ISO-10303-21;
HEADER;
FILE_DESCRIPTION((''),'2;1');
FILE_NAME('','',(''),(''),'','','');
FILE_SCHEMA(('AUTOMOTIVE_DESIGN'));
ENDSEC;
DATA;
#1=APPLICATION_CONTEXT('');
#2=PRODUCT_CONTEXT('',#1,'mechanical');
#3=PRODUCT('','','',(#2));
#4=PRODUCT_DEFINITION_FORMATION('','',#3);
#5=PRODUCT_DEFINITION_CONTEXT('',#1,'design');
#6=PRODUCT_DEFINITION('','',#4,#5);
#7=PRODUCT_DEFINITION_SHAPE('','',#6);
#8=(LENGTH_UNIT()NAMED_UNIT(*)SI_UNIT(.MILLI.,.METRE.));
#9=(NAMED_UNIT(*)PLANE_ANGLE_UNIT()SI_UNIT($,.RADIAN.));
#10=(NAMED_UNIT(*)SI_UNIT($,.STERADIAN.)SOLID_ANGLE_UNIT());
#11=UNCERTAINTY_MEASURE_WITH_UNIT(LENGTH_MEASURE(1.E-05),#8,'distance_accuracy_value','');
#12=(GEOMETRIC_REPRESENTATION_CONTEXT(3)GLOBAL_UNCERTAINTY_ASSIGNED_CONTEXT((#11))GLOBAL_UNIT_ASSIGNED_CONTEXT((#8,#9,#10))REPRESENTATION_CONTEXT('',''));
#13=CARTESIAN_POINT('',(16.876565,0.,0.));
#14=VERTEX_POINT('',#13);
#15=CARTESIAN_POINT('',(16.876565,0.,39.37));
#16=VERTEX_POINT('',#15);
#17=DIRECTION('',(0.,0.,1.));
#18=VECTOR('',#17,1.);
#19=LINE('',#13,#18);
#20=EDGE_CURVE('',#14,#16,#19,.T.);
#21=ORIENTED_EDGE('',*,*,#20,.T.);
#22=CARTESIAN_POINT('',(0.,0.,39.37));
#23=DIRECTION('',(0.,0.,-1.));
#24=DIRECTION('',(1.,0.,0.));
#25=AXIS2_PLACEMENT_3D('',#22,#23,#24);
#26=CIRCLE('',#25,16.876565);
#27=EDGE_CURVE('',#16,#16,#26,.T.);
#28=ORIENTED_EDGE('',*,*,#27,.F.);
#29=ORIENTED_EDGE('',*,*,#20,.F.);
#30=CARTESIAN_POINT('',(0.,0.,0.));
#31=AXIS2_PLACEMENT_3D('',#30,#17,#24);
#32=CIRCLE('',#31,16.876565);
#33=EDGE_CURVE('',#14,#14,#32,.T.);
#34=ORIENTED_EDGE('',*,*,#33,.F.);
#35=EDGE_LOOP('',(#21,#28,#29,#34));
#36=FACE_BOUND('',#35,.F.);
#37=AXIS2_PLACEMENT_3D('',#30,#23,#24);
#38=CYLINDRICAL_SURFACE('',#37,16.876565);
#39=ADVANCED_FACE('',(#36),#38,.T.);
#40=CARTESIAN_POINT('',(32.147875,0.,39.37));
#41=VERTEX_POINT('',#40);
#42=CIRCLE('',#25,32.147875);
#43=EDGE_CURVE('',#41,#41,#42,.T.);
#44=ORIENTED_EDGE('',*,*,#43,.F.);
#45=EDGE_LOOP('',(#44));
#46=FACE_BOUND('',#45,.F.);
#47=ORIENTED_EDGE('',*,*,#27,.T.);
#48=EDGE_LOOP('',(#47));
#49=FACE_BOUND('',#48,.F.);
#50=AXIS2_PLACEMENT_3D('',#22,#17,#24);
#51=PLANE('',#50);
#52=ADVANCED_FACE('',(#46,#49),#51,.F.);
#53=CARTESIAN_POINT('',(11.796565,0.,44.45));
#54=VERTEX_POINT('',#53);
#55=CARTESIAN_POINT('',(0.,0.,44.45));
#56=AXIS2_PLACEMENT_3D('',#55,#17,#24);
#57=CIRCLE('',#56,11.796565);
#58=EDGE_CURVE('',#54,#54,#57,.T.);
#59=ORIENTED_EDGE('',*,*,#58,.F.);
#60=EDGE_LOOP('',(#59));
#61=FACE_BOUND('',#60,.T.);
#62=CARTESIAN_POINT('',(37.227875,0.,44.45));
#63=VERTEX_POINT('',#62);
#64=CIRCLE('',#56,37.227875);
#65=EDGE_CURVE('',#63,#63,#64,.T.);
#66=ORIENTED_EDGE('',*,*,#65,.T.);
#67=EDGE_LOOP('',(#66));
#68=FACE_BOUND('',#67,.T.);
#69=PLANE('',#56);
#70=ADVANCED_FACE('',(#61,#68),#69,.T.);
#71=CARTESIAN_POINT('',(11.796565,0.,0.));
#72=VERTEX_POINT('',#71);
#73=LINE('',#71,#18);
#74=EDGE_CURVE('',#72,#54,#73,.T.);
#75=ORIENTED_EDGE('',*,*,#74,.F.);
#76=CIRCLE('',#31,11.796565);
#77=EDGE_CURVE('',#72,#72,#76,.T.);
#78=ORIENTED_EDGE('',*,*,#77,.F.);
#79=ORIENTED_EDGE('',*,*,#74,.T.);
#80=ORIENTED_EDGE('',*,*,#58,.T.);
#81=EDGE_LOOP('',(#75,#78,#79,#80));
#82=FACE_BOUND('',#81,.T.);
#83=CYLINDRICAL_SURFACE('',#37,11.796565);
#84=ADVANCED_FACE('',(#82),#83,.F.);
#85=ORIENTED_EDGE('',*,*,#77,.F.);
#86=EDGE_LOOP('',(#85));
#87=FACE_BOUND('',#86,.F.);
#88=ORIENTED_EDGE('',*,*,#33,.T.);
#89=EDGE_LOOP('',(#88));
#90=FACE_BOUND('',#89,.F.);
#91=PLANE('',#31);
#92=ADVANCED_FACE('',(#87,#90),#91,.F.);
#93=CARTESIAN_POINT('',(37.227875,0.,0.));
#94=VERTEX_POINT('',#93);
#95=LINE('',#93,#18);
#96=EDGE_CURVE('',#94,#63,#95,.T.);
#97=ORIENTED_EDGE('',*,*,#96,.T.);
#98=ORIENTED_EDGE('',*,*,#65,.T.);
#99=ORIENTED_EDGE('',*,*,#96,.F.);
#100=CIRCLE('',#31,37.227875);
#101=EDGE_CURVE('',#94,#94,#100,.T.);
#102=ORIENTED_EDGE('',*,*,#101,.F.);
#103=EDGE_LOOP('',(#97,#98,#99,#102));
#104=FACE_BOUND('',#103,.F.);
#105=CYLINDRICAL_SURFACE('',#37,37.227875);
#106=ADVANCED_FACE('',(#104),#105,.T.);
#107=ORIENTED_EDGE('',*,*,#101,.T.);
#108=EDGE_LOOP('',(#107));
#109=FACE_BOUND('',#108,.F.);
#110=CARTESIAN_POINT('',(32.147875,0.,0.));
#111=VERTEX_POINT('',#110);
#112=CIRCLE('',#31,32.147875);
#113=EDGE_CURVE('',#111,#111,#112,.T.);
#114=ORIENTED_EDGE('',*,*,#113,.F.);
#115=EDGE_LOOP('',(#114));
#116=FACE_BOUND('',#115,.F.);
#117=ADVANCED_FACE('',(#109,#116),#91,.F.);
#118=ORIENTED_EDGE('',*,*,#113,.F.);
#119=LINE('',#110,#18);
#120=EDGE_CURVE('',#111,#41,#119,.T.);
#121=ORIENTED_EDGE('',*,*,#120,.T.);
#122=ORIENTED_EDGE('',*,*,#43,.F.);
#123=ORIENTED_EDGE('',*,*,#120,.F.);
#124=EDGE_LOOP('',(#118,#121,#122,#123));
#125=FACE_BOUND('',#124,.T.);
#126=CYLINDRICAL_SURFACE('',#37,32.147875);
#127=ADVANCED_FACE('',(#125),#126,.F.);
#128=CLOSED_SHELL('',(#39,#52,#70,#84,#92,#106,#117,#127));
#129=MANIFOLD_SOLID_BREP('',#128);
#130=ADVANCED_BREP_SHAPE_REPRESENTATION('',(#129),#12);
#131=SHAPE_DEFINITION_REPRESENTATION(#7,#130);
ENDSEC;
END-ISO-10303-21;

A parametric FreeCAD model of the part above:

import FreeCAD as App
import Part
import Sketcher
Q = App.Units.Quantity


def faces_at(feature, points):
    """Names of the faces that lie closest to the given points."""
    faces = feature.Shape.Faces
    near = lambda p: min(range(len(faces)), key=lambda i: faces[i].distToShape(Part.Vertex(*p))[0])
    return sorted({f"Face{near(p) + 1}" for p in points})

doc = App.newDocument("Part")
body = doc.addObject("PartDesign::Body", "Body")

# Sketch on XY plane
sketch1 = body.newObject("Sketcher::SketchObject", "Sketch")
sketch1.AttachmentSupport = (doc.getObject("XY_Plane"), [""])
sketch1.MapMode = "FlatFace"
sketch1.addGeometry(Part.Circle(App.Vector(0, 0, 0), App.Vector(0, 0, 1), 37), False)
sketch1.addGeometry(Part.Circle(App.Vector(0, 0, 0), App.Vector(0, 0, 1), 12), False)
sketch1.addConstraint(Sketcher.Constraint("Coincident", 0, 3, -1, 1))
sketch1.addConstraint(Sketcher.Constraint("Coincident", 1, 3, -1, 1))
sketch1.addConstraint(Sketcher.Constraint("Diameter", 0, Q("74.45575 mm")))
sketch1.addConstraint(Sketcher.Constraint("Diameter", 1, Q("23.59313 mm")))
pad1 = body.newObject("PartDesign::Pad", "Pad")
pad1.Profile = sketch1
pad1.Length = Q("1.75 in")
doc.recompute()

thickness = body.newObject("PartDesign::Thickness", "Thickness")
thickness.Base = (pad1, faces_at(pad1, [(-14.891, -14.891, 0)]))
thickness.Value = Q("0.2 in")
thickness.Reversed = True
thickness.Join = "Arc"

doc.recompute()
